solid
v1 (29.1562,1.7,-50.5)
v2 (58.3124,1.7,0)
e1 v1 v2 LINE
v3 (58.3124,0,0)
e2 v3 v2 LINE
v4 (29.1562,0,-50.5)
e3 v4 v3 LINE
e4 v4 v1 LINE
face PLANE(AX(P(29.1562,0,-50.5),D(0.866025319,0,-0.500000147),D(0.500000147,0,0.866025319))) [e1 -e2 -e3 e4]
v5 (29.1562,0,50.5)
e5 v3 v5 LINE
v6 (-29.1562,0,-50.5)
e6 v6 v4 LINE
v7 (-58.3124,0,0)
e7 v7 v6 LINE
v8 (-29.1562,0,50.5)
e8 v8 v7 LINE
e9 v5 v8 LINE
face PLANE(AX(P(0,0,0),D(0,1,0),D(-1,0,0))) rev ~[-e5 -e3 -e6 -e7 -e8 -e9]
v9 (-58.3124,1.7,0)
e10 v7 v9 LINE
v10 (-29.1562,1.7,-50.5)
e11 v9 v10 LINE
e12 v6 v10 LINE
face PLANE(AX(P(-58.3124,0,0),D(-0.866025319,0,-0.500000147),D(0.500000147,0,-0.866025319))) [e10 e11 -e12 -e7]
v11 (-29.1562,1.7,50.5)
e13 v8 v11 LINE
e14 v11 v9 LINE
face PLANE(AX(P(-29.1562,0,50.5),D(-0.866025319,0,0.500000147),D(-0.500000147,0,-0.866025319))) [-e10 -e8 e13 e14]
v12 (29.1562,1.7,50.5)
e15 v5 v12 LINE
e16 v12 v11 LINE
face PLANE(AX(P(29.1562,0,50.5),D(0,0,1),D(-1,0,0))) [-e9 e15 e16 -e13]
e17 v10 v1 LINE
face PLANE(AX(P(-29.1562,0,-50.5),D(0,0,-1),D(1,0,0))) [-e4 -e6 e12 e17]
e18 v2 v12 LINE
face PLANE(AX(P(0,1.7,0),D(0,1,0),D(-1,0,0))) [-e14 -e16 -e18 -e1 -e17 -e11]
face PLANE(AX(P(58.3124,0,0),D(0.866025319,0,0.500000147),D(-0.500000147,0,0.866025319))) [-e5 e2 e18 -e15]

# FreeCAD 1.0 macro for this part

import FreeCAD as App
import Part
import Sketcher
from FreeCAD import Vector
Q = App.Units.Quantity

doc = App.newDocument("Part")
body = doc.addObject("PartDesign::Body", "Body")

sketch1 = doc.addObject("Sketcher::SketchObject", "Sketch")
body.addObject(sketch1)
sketch1.AttachmentSupport = (doc.XZ_Plane, [""])
sketch1.MapMode = "FlatFace"
sketch1.addGeometry(Part.LineSegment(Vector(58, 0, 0), Vector(29, -50, 0)), False)
sketch1.addGeometry(Part.LineSegment(Vector(29, -50, 0), Vector(-29, -50, 0)), False)
sketch1.addGeometry(Part.LineSegment(Vector(-29, -50, 0), Vector(-58, 0, 0)), False)
sketch1.addGeometry(Part.LineSegment(Vector(-58, 0, 0), Vector(-29, 50, 0)), False)
sketch1.addGeometry(Part.LineSegment(Vector(-29, 50, 0), Vector(29, 50, 0)), False)
sketch1.addGeometry(Part.LineSegment(Vector(29, 50, 0), Vector(58, 0, 0)), False)
sketch1.addConstraint(Sketcher.Constraint("Coincident", 0, 2, 1, 1))
sketch1.addConstraint(Sketcher.Constraint("Coincident", 1, 2, 2, 1))
sketch1.addConstraint(Sketcher.Constraint("Coincident", 2, 2, 3, 1))
sketch1.addConstraint(Sketcher.Constraint("Coincident", 3, 2, 4, 1))
sketch1.addConstraint(Sketcher.Constraint("Coincident", 4, 2, 5, 1))
sketch1.addConstraint(Sketcher.Constraint("Coincident", 5, 2, 0, 1))
sketch1.addConstraint(Sketcher.Constraint("Horizontal", 1))
sketch1.addConstraint(Sketcher.Constraint("Horizontal", 4))
sketch1.addConstraint(Sketcher.Constraint("Symmetric", 0, 2, 3, 2, -1, 1))
sketch1.addConstraint(Sketcher.Constraint("Symmetric", 2, 2, 5, 2, -1, 1))
sketch1.addConstraint(Sketcher.Constraint("PointOnObject", 2, 2, -1))
sketch1.addConstraint(Sketcher.Constraint("Parallel", 2, 5))
sketch1.addConstraint(Sketcher.Constraint("Vertical", 1, 2, 3, 2))
sketch1.addConstraint(Sketcher.Constraint("DistanceY", 1, 2, 3, 2, Q("101 mm")))
sketch1.addConstraint(Sketcher.Constraint("Angle", 0, Q("-120 deg")))
sketch1.addConstraint(Sketcher.Constraint("DistanceX", 1, 2, 1, 1, Q("58.3124 mm")))
pad1 = doc.addObject("PartDesign::Pad", "Pad")
body.addObject(pad1)
pad1.Profile = sketch1
pad1.Length = 1.7
pad1.Reversed = True

doc.recompute()
